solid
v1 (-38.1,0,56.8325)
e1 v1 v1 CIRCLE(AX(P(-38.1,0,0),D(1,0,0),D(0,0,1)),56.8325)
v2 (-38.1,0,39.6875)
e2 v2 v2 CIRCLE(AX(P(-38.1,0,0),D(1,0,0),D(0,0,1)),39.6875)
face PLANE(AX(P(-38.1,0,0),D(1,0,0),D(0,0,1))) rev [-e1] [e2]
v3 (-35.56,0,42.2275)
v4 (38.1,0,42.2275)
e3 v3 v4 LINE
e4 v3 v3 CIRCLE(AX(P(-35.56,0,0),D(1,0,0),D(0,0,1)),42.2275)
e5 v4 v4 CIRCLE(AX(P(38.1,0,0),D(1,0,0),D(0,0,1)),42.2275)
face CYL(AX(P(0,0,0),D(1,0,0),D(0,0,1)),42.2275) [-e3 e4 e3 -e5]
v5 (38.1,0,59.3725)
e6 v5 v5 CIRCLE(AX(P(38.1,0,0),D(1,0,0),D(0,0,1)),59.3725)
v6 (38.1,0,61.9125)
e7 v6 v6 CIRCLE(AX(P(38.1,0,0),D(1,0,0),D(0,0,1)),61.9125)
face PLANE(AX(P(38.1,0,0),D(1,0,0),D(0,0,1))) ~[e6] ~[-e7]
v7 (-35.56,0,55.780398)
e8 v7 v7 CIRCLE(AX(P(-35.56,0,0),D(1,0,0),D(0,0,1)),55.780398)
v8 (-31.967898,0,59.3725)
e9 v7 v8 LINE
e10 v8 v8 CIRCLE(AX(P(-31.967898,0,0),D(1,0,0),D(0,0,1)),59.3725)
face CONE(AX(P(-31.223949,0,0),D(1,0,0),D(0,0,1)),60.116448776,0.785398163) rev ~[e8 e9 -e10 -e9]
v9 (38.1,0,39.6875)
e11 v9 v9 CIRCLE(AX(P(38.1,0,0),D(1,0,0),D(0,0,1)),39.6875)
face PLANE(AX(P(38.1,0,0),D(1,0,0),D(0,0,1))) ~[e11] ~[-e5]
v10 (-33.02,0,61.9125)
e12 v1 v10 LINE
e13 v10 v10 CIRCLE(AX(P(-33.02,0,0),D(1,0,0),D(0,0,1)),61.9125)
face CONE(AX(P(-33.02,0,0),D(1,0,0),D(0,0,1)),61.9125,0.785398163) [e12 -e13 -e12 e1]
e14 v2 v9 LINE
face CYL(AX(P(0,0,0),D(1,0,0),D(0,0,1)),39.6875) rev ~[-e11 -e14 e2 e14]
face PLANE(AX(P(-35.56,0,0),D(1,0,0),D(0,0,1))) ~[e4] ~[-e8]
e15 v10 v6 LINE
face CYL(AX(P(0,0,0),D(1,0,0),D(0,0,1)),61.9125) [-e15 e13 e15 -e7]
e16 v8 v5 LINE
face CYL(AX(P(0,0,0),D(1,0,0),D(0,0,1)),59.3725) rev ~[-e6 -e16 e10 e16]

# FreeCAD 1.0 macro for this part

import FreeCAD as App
import Part
import Sketcher

V = App.Vector
Q = App.Units.Quantity


def edges_at(feature, points):
    """Names of the edges that pass closest to the given points."""
    edges = feature.Shape.Edges
    near = lambda p: min(range(len(edges)), key=lambda i: edges[i].distToShape(Part.Vertex(*p))[0])
    return sorted({f"Edge{near(p) + 1}" for p in points})


def faces_at(feature, points):
    """Names of the faces that lie closest to the given points."""
    faces = feature.Shape.Faces
    near = lambda p: min(range(len(faces)), key=lambda i: faces[i].distToShape(Part.Vertex(*p))[0])
    return sorted({f"Face{near(p) + 1}" for p in points})

doc = App.newDocument("Part")
body = doc.addObject("PartDesign::Body", "Body")

# Sketch on XZ plane
sketch1 = body.newObject("Sketcher::SketchObject", "Sketch")
sketch1.AttachmentSupport = (doc.getObject("XZ_Plane"), [""])
sketch1.MapMode = "FlatFace"
sketch1.addGeometry([
    Part.LineSegment(V(-38, 62, 0), V(-38, 40, 0)),
    Part.LineSegment(V(-38, 40, 0), V(38, 40, 0)),
    Part.LineSegment(V(38, 40, 0), V(38, 62, 0)),
    Part.LineSegment(V(38, 62, 0), V(-38, 62, 0)),
], False)
sketch1.addConstraint([
    Sketcher.Constraint("Coincident", 0, 2, 1, 1),
    Sketcher.Constraint("Coincident", 1, 2, 2, 1),
    Sketcher.Constraint("Coincident", 2, 2, 3, 1),
    Sketcher.Constraint("Coincident", 3, 2, 0, 1),
    Sketcher.Constraint("Vertical", 0),
    Sketcher.Constraint("Horizontal", 1),
    Sketcher.Constraint("Vertical", 2),
    Sketcher.Constraint("Horizontal", 3),
    Sketcher.Constraint("DistanceX", 1, 1, 1, 2, Q("3 in")),
    Sketcher.Constraint("DistanceX", 0, 2, -1, 1, Q("1.5 in")),
    Sketcher.Constraint("DistanceY", 0, 2, 0, 1, Q("0.875 in")),
    Sketcher.Constraint("DistanceY", -1, 1, 0, 2, Q("1.5625 in")),
])
revolution = body.newObject("PartDesign::Revolution", "Revolution")
revolution.Profile = sketch1
revolution.ReferenceAxis = (sketch1, ["H_Axis"])
revolution.Angle = 360
doc.recompute()

chamfer = body.newObject("PartDesign::Chamfer", "Chamfer")
chamfer.Base = (revolution, edges_at(revolution, [(-38.1, 0, -61.913)]))
chamfer.Size = Q("0.2 in")
doc.recompute()

thickness = body.newObject("PartDesign::Thickness", "Thickness")
thickness.Base = (chamfer, faces_at(chamfer, [(38.1, 0, 49.53)]))
thickness.Value = Q("0.1 in")
thickness.Reversed = True
thickness.Join = "Arc"

doc.recompute()
